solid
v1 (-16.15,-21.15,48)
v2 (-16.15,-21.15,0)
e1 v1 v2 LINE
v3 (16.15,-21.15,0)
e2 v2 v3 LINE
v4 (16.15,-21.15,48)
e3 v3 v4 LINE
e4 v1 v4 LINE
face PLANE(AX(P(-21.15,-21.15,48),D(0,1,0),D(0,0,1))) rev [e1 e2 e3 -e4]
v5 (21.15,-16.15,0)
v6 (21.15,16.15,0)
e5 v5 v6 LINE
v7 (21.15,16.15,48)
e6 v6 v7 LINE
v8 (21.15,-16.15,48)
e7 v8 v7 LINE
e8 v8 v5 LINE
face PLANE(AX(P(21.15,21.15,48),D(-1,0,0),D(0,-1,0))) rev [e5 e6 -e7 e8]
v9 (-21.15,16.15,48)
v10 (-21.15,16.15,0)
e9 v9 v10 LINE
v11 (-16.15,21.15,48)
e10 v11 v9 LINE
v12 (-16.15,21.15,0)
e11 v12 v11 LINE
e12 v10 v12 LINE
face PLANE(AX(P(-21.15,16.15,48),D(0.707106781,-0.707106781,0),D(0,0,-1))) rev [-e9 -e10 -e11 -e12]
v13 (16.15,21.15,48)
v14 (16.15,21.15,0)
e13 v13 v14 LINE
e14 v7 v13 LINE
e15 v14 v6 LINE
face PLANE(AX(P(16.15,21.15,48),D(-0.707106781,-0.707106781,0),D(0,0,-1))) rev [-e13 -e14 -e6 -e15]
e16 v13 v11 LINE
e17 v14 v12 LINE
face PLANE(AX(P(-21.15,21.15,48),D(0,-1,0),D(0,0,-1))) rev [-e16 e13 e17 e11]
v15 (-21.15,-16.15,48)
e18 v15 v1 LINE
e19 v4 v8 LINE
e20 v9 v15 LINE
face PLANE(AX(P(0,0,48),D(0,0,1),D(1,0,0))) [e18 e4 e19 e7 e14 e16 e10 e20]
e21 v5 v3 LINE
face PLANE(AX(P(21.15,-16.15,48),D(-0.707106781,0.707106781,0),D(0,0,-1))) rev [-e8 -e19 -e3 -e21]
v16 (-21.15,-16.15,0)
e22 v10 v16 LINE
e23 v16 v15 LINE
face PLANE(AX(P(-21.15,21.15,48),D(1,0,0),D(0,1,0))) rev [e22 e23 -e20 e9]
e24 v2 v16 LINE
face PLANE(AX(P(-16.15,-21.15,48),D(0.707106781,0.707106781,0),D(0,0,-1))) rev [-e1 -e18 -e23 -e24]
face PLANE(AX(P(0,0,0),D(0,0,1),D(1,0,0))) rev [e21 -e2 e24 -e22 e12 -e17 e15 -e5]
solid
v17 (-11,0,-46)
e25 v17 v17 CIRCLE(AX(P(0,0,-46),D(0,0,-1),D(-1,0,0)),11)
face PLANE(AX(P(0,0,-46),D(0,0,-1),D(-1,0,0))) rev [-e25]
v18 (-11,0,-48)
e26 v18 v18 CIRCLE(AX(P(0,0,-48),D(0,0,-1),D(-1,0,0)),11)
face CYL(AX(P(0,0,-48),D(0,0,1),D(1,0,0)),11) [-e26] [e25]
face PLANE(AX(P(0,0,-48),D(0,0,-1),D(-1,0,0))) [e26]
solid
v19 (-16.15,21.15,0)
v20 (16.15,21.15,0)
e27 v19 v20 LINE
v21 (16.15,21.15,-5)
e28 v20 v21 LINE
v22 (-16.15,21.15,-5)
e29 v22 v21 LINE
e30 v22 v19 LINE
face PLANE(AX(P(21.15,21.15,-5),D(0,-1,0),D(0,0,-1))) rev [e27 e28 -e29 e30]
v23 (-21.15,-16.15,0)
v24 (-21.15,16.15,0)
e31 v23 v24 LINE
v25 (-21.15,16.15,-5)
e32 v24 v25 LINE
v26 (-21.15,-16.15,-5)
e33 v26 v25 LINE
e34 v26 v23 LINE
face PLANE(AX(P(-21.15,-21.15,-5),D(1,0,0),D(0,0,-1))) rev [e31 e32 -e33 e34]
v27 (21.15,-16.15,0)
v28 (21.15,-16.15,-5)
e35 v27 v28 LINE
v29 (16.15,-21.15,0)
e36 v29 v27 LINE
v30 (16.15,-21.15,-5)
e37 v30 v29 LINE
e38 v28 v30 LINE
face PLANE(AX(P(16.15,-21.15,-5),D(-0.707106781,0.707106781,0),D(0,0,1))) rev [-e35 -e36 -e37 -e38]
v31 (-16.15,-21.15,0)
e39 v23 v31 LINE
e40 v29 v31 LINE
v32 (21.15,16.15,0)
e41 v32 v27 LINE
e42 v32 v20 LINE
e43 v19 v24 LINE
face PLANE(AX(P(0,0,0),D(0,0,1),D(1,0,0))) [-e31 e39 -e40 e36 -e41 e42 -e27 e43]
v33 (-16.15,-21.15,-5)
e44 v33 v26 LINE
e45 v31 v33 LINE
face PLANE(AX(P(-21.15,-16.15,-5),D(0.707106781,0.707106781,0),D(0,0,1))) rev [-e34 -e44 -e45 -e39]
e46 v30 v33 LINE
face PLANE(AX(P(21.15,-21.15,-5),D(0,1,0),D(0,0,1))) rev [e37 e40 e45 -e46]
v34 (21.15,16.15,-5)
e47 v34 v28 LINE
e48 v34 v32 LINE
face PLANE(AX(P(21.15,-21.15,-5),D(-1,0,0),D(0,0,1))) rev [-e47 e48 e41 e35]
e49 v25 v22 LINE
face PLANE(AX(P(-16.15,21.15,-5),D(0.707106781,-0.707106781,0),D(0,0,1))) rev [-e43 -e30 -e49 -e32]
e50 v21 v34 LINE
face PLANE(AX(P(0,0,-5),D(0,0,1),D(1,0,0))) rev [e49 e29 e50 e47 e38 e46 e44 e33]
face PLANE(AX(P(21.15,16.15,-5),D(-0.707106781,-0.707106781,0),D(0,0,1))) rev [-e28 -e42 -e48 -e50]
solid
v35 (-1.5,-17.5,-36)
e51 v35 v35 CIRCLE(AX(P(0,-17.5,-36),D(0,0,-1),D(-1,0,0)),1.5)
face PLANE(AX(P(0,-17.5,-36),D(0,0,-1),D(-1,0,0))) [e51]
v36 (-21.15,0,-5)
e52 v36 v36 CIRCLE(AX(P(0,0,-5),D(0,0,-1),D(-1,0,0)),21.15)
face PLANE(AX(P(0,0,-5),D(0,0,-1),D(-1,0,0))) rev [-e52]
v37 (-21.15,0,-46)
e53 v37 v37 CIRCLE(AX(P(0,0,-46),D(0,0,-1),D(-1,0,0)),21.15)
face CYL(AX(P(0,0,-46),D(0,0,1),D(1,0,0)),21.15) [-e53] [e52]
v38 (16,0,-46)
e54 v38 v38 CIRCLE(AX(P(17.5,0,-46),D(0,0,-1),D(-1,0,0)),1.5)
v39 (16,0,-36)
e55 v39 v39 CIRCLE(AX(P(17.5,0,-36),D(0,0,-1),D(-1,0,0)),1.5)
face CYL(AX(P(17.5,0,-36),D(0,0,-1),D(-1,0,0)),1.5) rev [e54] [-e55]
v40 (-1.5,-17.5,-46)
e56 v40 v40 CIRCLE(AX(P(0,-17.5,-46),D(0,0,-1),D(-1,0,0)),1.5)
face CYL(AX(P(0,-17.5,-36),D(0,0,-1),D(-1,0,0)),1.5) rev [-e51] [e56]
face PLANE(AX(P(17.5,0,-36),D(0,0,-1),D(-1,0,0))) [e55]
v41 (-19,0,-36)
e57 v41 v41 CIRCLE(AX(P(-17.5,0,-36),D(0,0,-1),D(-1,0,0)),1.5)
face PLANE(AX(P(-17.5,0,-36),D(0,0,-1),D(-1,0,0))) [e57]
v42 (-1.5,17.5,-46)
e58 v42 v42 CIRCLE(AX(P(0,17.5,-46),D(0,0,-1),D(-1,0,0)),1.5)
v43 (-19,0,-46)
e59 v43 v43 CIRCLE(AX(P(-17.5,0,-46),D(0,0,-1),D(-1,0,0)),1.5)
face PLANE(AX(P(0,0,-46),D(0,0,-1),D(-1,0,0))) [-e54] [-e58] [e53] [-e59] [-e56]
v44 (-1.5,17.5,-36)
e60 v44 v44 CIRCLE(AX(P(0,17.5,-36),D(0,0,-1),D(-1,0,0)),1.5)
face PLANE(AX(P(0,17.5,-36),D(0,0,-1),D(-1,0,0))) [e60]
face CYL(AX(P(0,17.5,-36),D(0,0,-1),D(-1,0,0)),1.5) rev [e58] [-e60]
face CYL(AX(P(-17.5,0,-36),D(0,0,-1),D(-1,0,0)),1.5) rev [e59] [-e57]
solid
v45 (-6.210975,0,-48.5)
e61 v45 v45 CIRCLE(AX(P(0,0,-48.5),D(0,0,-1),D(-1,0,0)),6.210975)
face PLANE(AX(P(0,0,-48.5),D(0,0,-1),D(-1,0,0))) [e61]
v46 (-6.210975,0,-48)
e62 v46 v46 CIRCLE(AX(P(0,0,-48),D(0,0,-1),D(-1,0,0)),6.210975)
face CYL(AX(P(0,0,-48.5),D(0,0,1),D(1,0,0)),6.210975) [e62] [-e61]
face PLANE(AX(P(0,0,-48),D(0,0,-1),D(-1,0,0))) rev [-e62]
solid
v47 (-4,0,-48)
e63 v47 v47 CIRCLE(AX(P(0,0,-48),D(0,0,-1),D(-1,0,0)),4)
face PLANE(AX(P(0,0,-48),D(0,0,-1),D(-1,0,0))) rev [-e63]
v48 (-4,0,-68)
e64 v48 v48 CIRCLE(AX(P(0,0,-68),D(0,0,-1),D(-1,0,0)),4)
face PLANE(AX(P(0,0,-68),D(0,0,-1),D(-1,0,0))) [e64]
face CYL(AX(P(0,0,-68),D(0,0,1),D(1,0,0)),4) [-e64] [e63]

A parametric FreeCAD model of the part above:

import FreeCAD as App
import Part
import Sketcher
from FreeCAD import Vector


def edges_at(feature, points):
    """Names of the edges that pass closest to the given points."""
    edges = feature.Shape.Edges
    near = lambda p: min(range(len(edges)), key=lambda i: edges[i].distToShape(Part.Vertex(*p))[0])
    return sorted({f"Edge{near(p) + 1}" for p in points})


def add_polygon(sketch, points):
    """Adds a closed chain of lines whose ends are joined by coincident constraints."""
    first, n = sketch.GeometryCount, len(points)
    for a, b in zip(points, points[1:] + points[:1]):
        sketch.addGeometry(Part.LineSegment(App.Vector(*a, 0), App.Vector(*b, 0)), False)
    for i in range(n):
        sketch.addConstraint(Sketcher.Constraint("Coincident", first + i, 2, first + (i + 1) % n, 1))

doc = App.newDocument("Part")
body = doc.addObject("PartDesign::Body", "Body")

sketch1 = body.newObject("Sketcher::SketchObject", "Sketch")
sketch1.AttachmentSupport = (doc.getObject("XY_Plane"), [""])
sketch1.MapMode = "FlatFace"
add_polygon(sketch1, [(-21, 21), (-21, -21), (21, -21), (21, 21)])
sketch1.addConstraint([
    Sketcher.Constraint("Vertical", 0),
    Sketcher.Constraint("Horizontal", 1),
    Sketcher.Constraint("Vertical", 2),
    Sketcher.Constraint("Horizontal", 3),
    Sketcher.Constraint("Symmetric", 0, 2, 2, 2, -1, 1),
    Sketcher.Constraint("Equal", 3, 0),
    Sketcher.Constraint("DistanceX", 1, 1, 1, 2, 42.3),
])
pad1 = body.newObject("PartDesign::Pad", "Pad")
pad1.Profile = sketch1
pad1.Length = 48
doc.recompute()

chamfer = body.newObject("PartDesign::Chamfer", "Chamfer")
chamfer.Base = (pad1, edges_at(pad1, [
    (21.15, -21.15, 24),
    (-21.15, -21.15, 24),
    (-21.15, 21.15, 24),
    (21.15, 21.15, 24),
]))
chamfer.Size = 5
body2 = doc.addObject("PartDesign::Body", "Body001")

sketch2 = body2.newObject("Sketcher::SketchObject", "Sketch001")
sketch2.AttachmentSupport = (doc.getObject("XY_Plane001"), [""])
sketch2.MapMode = "FlatFace"
add_polygon(sketch2, [(21, 21), (21, -21), (-21, -21), (-21, 21)])
sketch2.addConstraint([
    Sketcher.Constraint("Vertical", 0),
    Sketcher.Constraint("Horizontal", 1),
    Sketcher.Constraint("Vertical", 2),
    Sketcher.Constraint("Horizontal", 3),
    Sketcher.Constraint("Symmetric", 0, 2, 2, 2, -1, 1),
    Sketcher.Constraint("Equal", 3, 0),
    Sketcher.Constraint("DistanceX", 1, 2, 1, 1, 42.3),
])
pad2 = body2.newObject("PartDesign::Pad", "Pad001")
pad2.Profile = sketch2
pad2.Length = 5
pad2.Reversed = True
doc.recompute()

chamfer2 = body2.newObject("PartDesign::Chamfer", "Chamfer001")
chamfer2.Base = (pad2, edges_at(pad2, [
    (-21.15, -21.15, -2.5),
    (21.15, -21.15, -2.5),
    (21.15, 21.15, -2.5),
    (-21.15, 21.15, -2.5),
]))
chamfer2.Size = 5
body3 = doc.addObject("PartDesign::Body", "Body002")

sketch3 = body3.newObject("Sketcher::SketchObject", "Sketch002")
sketch3.AttachmentSupport = (doc.getObject("XY_Plane002"), [""])
sketch3.MapMode = "FlatFace"
sketch3.AttachmentOffset = App.Placement(Vector(0, 0, -5), App.Rotation())
sketch3.addGeometry(Part.Circle(Vector(0, 0, 0), Vector(0, 0, 1), 21), False)
sketch3.addConstraint([
    Sketcher.Constraint("Coincident", 0, 3, -1, 1),
    Sketcher.Constraint("Diameter", 0, 42.3),
])
pad3 = body3.newObject("PartDesign::Pad", "Pad002")
pad3.Profile = sketch3
pad3.Length = 41
pad3.Reversed = True

sketch4 = body3.newObject("Sketcher::SketchObject", "Sketch003")
sketch4.AttachmentSupport = (doc.getObject("XY_Plane002"), [""])
sketch4.MapMode = "FlatFace"
sketch4.AttachmentOffset = App.Placement(Vector(0, 0, -46), App.Rotation())
sketch4.addGeometry([
    Part.Circle(Vector(17.5, 0, 0), Vector(0, 0, 1), 1.5),
    Part.Circle(Vector(0, 17.5, 0), Vector(0, 0, 1), 1.5),
    Part.Circle(Vector(-17.5, 0, 0), Vector(0, 0, 1), 1.5),
    Part.Circle(Vector(0, -17.5, 0), Vector(0, 0, 1), 1.5),
], False)
sketch4.addConstraint([
    Sketcher.Constraint("Equal", 0, 1),
    Sketcher.Constraint("Equal", 1, 2),
    Sketcher.Constraint("Equal", 2, 3),
    Sketcher.Constraint("Symmetric", 0, 3, 2, 3, -1, 1),
    Sketcher.Constraint("Symmetric", 1, 3, 3, 3, -1, 1),
    Sketcher.Constraint("PointOnObject", 0, 3, -1),
    Sketcher.Constraint("PointOnObject", 1, 3, -2),
    Sketcher.Constraint("Diameter", 0, 3.0),
    Sketcher.Constraint("DistanceX", 2, 3, 0, 3, 35.0),
    Sketcher.Constraint("DistanceY", 3, 3, 1, 3, 35.0),
])
pocket1 = body3.newObject("PartDesign::Pocket", "Pocket")
pocket1.Profile = sketch4
pocket1.Length = 10
pocket1.Reversed = True
body4 = doc.addObject("PartDesign::Body", "Body003")

sketch5 = body4.newObject("Sketcher::SketchObject", "Sketch004")
sketch5.AttachmentSupport = (doc.getObject("XY_Plane003"), [""])
sketch5.MapMode = "FlatFace"
sketch5.AttachmentOffset = App.Placement(Vector(0, 0, -46), App.Rotation())
sketch5.addGeometry(Part.Circle(Vector(0, 0, 0), Vector(0, 0, 1), 11), False)
sketch5.addConstraint([
    Sketcher.Constraint("Coincident", 0, 3, -1, 1),
    Sketcher.Constraint("Diameter", 0, 22.0),
])
pad4 = body4.newObject("PartDesign::Pad", "Pad003")
pad4.Profile = sketch5
pad4.Length = 2
pad4.Reversed = True
body5 = doc.addObject("PartDesign::Body", "Body004")

sketch6 = body5.newObject("Sketcher::SketchObject", "Sketch005")
sketch6.AttachmentSupport = (doc.getObject("XY_Plane004"), [""])
sketch6.MapMode = "FlatFace"
sketch6.AttachmentOffset = App.Placement(Vector(0, 0, -48), App.Rotation())
sketch6.addGeometry(Part.Circle(Vector(0, 0, 0), Vector(0, 0, 1), 4), False)
sketch6.addConstraint([
    Sketcher.Constraint("Coincident", 0, 3, -1, 1),
    Sketcher.Constraint("Diameter", 0, 8.0),
])
pad5 = body5.newObject("PartDesign::Pad", "Pad004")
pad5.Profile = sketch6
pad5.Length = 20
pad5.Reversed = True
body6 = doc.addObject("PartDesign::Body", "Body005")

sketch7 = body6.newObject("Sketcher::SketchObject", "Sketch006")
sketch7.AttachmentSupport = (doc.getObject("XY_Plane005"), [""])
sketch7.MapMode = "FlatFace"
sketch7.AttachmentOffset = App.Placement(Vector(0, 0, -48), App.Rotation())
sketch7.addGeometry(Part.Circle(Vector(0, 0, 0), Vector(0, 0, 1), 6), False)
sketch7.addConstraint([
    Sketcher.Constraint("Coincident", 0, 3, -1, 1),
    Sketcher.Constraint("Diameter", 0, 12.42195),
])
pad6 = body6.newObject("PartDesign::Pad", "Pad005")
pad6.Profile = sketch7
pad6.Length = 0.5
pad6.Reversed = True

doc.recompute()
